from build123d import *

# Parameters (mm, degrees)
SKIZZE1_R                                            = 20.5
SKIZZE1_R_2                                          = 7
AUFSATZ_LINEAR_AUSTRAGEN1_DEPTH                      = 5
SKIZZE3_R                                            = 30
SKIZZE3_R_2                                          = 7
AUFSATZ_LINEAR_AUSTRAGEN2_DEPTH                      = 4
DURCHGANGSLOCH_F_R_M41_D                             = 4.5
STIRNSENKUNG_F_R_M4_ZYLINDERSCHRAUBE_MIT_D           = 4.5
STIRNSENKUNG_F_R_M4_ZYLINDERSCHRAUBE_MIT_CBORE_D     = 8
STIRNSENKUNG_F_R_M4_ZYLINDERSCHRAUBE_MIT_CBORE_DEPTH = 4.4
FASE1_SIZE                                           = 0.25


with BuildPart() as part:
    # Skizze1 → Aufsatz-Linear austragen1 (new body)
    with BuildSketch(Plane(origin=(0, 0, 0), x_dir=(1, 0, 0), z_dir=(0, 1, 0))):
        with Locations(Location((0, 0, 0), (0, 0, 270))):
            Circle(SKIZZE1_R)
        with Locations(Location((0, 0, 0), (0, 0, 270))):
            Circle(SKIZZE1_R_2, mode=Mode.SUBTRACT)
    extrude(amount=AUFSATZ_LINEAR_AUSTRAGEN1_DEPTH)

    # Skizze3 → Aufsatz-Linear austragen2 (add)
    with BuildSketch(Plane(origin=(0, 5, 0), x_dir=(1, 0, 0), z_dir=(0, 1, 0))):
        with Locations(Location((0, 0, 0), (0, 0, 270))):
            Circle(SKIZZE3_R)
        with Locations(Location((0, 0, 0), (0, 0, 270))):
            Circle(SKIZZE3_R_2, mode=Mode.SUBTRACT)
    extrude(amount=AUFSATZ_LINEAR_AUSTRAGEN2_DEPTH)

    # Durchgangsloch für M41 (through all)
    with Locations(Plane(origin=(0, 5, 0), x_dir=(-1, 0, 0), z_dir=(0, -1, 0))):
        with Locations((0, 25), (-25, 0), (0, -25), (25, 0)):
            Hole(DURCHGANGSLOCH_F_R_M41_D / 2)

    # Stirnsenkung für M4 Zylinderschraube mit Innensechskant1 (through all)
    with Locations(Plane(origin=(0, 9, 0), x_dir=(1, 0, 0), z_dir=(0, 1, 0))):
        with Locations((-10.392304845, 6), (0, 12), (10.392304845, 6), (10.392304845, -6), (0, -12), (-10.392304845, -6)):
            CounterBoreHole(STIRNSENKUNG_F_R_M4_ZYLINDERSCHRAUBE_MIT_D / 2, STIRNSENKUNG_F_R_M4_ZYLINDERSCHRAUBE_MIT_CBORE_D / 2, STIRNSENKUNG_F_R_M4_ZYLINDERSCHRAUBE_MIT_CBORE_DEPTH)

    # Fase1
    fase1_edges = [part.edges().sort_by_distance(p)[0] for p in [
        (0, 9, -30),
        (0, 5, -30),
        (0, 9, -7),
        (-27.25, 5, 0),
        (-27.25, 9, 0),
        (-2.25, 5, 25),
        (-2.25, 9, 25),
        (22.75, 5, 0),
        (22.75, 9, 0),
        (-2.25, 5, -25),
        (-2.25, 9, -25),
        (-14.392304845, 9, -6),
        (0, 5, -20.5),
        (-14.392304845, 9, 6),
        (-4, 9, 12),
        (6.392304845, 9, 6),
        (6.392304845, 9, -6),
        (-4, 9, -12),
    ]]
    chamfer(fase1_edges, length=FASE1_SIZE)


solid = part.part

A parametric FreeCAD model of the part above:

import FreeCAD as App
import Part
import Sketcher

V = App.Vector


def edges_at(feature, points):
    """Names of the edges that pass closest to the given points."""
    edges = feature.Shape.Edges
    near = lambda p: min(range(len(edges)), key=lambda i: edges[i].distToShape(Part.Vertex(*p))[0])
    return sorted({f"Edge{near(p) + 1}" for p in points})

doc = App.newDocument("Part")
params = doc.addObject("Spreadsheet::Sheet", "Params")
for row, (alias, value) in enumerate([
    ("sketch1_diameter", "41 mm"),
    ("sketch1_diameter2", "14 mm"),
    ("pad1_length", "5 mm"),
    ("sketch2_diameter", "60 mm"),
    ("sketch2_diameter2", "14 mm"),
    ("pad2_length", "4 mm"),
    ("sketch3_diameter", "4.5 mm"),
    ("hole_diameter", "4.5 mm"),
    ("sketch4_diameter", "4.5 mm"),
    ("hole2_diameter", "4.5 mm"),
    ("hole2_cbore_diameter", "8 mm"),
    ("hole2_cbore_depth", "4.4 mm"),
    ("chamfer_size", "0.25 mm"),
], start=1):
    params.set(f"A{row}", alias)
    params.set(f"B{row}", "=" + value)
    params.setAlias(f"B{row}", alias)

body = doc.addObject("PartDesign::Body", "Body")

sketch1 = body.newObject("Sketcher::SketchObject", "Sketch")
sketch1.AttachmentSupport = (doc.getObject("XZ_Plane"), [""])
sketch1.MapMode = "FlatFace"
sketch1.addGeometry([
    Part.Circle(V(0, 0, 0), V(0, 0, 1), 20),
    Part.Circle(V(0, 0, 0), V(0, 0, 1), 7),
], False)
sketch1.addConstraint([
    Sketcher.Constraint("Coincident", 0, 3, -1, 1),
    Sketcher.Constraint("Coincident", 1, 3, -1, 1),
    Sketcher.Constraint("Diameter", 0, 41.0),
    Sketcher.Constraint("Diameter", 1, 14.0),
])
sketch1.setExpression("Constraints[2]", "Params.sketch1_diameter")
sketch1.setExpression("Constraints[3]", "Params.sketch1_diameter2")
pad1 = body.newObject("PartDesign::Pad", "Pad")
pad1.Profile = sketch1
pad1.setExpression("Length", "Params.pad1_length")
pad1.Reversed = True

sketch2 = body.newObject("Sketcher::SketchObject", "Sketch001")
sketch2.AttachmentSupport = (doc.getObject("XZ_Plane"), [""])
sketch2.MapMode = "FlatFace"
sketch2.AttachmentOffset = App.Placement(V(0, 0, -5), App.Rotation())
sketch2.addGeometry([
    Part.Circle(V(0, 0, 0), V(0, 0, 1), 30),
    Part.Circle(V(0, 0, 0), V(0, 0, 1), 7),
], False)
sketch2.addConstraint([
    Sketcher.Constraint("Coincident", 0, 3, -1, 1),
    Sketcher.Constraint("Coincident", 1, 3, -1, 1),
    Sketcher.Constraint("Diameter", 0, 60.0),
    Sketcher.Constraint("Diameter", 1, 14.0),
])
sketch2.setExpression("Constraints[2]", "Params.sketch2_diameter")
sketch2.setExpression("Constraints[3]", "Params.sketch2_diameter2")
pad2 = body.newObject("PartDesign::Pad", "Pad001")
pad2.Profile = sketch2
pad2.setExpression("Length", "Params.pad2_length")
pad2.Reversed = True

sketch3 = body.newObject("Sketcher::SketchObject", "Sketch002")
sketch3.AttachmentSupport = (doc.getObject("XZ_Plane"), [""])
sketch3.MapMode = "FlatFace"
sketch3.AttachmentOffset = App.Placement(V(0, 0, -5), App.Rotation())
sketch3.addGeometry([
    Part.Circle(V(0, -25, 0), V(0, 0, 1), 2.2),
    Part.Circle(V(25, 0, 0), V(0, 0, 1), 2.2),
    Part.Circle(V(0, 25, 0), V(0, 0, 1), 2.2),
    Part.Circle(V(-25, 0, 0), V(0, 0, 1), 2.2),
], False)
sketch3.addConstraint([
    Sketcher.Constraint("Equal", 0, 1),
    Sketcher.Constraint("Equal", 1, 2),
    Sketcher.Constraint("Equal", 2, 3),
    Sketcher.Constraint("Symmetric", 0, 3, 2, 3, -1, 1),
    Sketcher.Constraint("Symmetric", 1, 3, 3, 3, -1, 1),
    Sketcher.Constraint("PointOnObject", 0, 3, -2),
    Sketcher.Constraint("PointOnObject", 1, 3, -1),
    Sketcher.Constraint("Diameter", 0, 4.5),
    Sketcher.Constraint("DistanceY", 0, 3, -1, 1, 25.0),
    Sketcher.Constraint("DistanceX", -1, 1, 1, 3, 25.0),
])
sketch3.setExpression("Constraints[7]", "Params.sketch3_diameter")
doc.recompute()
hole = body.newObject("PartDesign::Hole", "Hole")
hole.Profile = sketch3
hole.ThreadType = "None"
hole.setExpression("Diameter", "Params.hole_diameter")
hole.DepthType = "ThroughAll"

sketch4 = body.newObject("Sketcher::SketchObject", "Sketch003")
sketch4.AttachmentSupport = (doc.getObject("XZ_Plane"), [""])
sketch4.MapMode = "FlatFace"
sketch4.AttachmentOffset = App.Placement(V(0, 0, -9), App.Rotation())
sketch4.addGeometry([
    Part.Circle(V(-10.4, -6, 0), V(0, 0, 1), 2.2),
    Part.Circle(V(0, -12, 0), V(0, 0, 1), 2.2),
    Part.Circle(V(10.4, -6, 0), V(0, 0, 1), 2.2),
    Part.Circle(V(10.4, 6, 0), V(0, 0, 1), 2.2),
    Part.Circle(V(0, 12, 0), V(0, 0, 1), 2.2),
    Part.Circle(V(-10.4, 6, 0), V(0, 0, 1), 2.2),
], False)
sketch4.addConstraint([
    Sketcher.Constraint("Equal", 0, 1),
    Sketcher.Constraint("Equal", 1, 2),
    Sketcher.Constraint("Equal", 2, 3),
    Sketcher.Constraint("Equal", 3, 4),
    Sketcher.Constraint("Equal", 4, 5),
    Sketcher.Constraint("Symmetric", 0, 3, 3, 3, -1, 1),
    Sketcher.Constraint("Symmetric", 1, 3, 4, 3, -1, 1),
    Sketcher.Constraint("Symmetric", 2, 3, 5, 3, -1, 1),
    Sketcher.Constraint("Symmetric", 0, 3, 2, 3, -2),
    Sketcher.Constraint("PointOnObject", 1, 3, -2),
    Sketcher.Constraint("Diameter", 0, 4.5),
    Sketcher.Constraint("DistanceY", 0, 3, -1, 1, 6.0),
    Sketcher.Constraint("DistanceY", 1, 3, -1, 1, 12.0),
    Sketcher.Constraint("DistanceX", 0, 3, 2, 3, 20.78461),
])
sketch4.setExpression("Constraints[10]", "Params.sketch4_diameter")
doc.recompute()
hole2 = body.newObject("PartDesign::Hole", "Hole001")
hole2.Profile = sketch4
hole2.ThreadType = "None"
hole2.setExpression("Diameter", "Params.hole2_diameter")
hole2.DepthType = "ThroughAll"
hole2.HoleCutType = "Counterbore"
hole2.setExpression("HoleCutDiameter", "Params.hole2_cbore_diameter")
hole2.setExpression("HoleCutDepth", "Params.hole2_cbore_depth")
hole2.Reversed = True
doc.recompute()

chamfer = body.newObject("PartDesign::Chamfer", "Chamfer")
chamfer.Base = (hole2, edges_at(hole2, [
    (0, 9, -30),
    (0, 5, -30),
    (0, 9, -7),
    (-27.25, 5, 0),
    (-27.25, 9, 0),
    (-2.25, 5, 25),
    (-2.25, 9, 25),
    (22.75, 5, 0),
    (22.75, 9, 0),
    (-2.25, 5, -25),
    (-2.25, 9, -25),
    (-14.392, 9, -6),
    (0, 5, -20.5),
    (-14.392, 9, 6),
    (-4, 9, 12),
    (6.392, 9, 6),
    (6.392, 9, -6),
    (-4, 9, -12),
]))
chamfer.setExpression("Size", "Params.chamfer_size")

doc.recompute()
